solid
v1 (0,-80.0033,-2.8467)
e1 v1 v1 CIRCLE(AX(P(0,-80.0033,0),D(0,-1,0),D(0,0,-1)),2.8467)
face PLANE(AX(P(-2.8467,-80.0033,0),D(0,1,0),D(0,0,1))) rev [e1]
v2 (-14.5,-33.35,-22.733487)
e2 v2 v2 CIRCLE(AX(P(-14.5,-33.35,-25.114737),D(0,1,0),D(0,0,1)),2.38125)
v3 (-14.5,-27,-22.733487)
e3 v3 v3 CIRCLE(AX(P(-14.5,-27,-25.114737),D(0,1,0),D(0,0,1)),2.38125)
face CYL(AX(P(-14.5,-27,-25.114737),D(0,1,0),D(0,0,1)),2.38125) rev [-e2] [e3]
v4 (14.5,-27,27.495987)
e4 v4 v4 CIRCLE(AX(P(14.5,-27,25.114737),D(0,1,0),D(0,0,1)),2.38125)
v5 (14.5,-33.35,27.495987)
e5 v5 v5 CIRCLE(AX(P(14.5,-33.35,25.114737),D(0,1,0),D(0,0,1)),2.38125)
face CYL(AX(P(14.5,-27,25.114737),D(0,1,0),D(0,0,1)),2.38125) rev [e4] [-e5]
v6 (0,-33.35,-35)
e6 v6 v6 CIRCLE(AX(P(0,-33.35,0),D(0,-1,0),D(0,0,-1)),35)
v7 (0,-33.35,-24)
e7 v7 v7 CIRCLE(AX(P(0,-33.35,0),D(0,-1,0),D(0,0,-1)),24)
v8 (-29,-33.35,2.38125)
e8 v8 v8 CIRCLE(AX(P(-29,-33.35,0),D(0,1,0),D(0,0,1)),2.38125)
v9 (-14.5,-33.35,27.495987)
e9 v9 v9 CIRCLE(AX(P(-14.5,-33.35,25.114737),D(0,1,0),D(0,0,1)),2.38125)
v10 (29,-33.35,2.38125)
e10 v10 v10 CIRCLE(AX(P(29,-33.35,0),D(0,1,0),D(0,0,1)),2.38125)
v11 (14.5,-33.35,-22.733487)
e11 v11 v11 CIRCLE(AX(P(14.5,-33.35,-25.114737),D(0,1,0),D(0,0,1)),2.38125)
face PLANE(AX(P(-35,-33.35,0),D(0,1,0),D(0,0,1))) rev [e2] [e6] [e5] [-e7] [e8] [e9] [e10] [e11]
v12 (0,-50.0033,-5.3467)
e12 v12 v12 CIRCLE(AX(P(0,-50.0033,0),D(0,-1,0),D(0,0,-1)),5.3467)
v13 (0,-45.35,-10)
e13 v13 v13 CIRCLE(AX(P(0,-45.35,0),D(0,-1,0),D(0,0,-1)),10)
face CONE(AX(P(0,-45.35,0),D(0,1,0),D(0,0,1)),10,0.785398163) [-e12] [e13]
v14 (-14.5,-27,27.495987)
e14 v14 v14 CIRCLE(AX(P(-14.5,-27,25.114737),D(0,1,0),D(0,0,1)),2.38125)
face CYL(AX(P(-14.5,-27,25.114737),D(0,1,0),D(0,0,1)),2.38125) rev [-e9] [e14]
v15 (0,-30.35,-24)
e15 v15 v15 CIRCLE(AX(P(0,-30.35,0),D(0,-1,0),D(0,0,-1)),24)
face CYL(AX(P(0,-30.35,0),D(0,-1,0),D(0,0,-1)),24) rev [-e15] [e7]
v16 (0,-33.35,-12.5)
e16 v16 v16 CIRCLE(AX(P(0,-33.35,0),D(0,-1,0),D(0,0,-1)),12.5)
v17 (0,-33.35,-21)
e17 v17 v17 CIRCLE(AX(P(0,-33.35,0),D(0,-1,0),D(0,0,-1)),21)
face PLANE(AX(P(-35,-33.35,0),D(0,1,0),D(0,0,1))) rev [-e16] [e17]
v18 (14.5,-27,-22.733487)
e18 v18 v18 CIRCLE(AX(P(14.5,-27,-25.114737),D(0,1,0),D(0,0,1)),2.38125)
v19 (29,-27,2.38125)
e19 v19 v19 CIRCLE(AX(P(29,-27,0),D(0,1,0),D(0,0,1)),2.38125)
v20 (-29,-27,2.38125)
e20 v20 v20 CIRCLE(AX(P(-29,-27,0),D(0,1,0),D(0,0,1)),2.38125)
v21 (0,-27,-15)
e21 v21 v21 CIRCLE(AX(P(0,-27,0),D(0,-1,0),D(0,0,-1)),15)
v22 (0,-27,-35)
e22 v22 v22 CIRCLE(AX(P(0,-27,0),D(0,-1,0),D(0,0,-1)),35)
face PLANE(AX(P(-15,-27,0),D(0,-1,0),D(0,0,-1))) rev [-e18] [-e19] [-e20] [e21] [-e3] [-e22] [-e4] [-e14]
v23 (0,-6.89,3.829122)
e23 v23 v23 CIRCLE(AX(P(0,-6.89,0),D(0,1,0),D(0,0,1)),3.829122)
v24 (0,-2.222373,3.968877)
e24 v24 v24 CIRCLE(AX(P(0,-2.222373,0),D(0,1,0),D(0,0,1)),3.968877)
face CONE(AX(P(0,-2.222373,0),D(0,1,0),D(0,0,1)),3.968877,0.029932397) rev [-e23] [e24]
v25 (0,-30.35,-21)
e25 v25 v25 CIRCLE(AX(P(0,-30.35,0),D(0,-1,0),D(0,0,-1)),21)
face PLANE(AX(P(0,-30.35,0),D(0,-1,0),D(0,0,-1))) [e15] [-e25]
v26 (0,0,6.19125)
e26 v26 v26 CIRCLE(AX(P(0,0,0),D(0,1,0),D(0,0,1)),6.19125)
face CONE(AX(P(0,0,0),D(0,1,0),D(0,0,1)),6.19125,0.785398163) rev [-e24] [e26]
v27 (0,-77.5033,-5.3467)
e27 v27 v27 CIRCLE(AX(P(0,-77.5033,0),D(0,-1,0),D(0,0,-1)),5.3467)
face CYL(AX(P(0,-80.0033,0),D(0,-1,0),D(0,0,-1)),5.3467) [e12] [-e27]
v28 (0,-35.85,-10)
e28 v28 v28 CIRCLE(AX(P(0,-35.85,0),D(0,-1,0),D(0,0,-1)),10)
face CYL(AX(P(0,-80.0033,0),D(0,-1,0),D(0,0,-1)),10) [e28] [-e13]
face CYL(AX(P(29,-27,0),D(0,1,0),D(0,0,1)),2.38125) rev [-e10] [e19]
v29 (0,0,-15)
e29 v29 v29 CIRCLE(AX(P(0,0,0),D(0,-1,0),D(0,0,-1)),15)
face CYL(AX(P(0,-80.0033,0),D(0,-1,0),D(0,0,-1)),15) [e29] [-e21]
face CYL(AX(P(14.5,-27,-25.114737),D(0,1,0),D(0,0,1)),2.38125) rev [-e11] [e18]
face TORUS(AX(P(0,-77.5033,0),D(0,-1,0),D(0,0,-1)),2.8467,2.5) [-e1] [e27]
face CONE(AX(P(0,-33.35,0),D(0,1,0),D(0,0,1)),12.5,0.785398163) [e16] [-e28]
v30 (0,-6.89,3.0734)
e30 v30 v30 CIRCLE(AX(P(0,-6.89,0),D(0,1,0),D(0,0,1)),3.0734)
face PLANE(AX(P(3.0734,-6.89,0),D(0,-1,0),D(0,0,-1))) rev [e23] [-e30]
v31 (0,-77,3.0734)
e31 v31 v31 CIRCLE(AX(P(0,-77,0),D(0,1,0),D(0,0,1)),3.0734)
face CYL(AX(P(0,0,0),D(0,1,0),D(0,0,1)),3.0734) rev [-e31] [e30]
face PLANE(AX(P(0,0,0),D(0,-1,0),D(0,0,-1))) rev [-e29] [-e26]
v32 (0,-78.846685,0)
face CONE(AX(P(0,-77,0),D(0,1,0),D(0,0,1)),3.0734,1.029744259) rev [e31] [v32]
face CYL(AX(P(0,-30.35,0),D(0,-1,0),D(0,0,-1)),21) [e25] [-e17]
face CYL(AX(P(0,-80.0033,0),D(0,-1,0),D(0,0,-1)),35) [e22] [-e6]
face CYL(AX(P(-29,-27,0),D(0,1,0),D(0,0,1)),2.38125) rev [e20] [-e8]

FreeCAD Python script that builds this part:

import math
import FreeCAD as App
import Part
import Sketcher
from FreeCAD import Vector
Q = App.Units.Quantity


def add_polygon(sketch, points):
    """Adds a closed chain of lines whose ends are joined by coincident constraints."""
    first, n = sketch.GeometryCount, len(points)
    for a, b in zip(points, points[1:] + points[:1]):
        sketch.addGeometry(Part.LineSegment(App.Vector(*a, 0), App.Vector(*b, 0)), False)
    for i in range(n):
        sketch.addConstraint(Sketcher.Constraint("Coincident", first + i, 2, first + (i + 1) % n, 1))

doc = App.newDocument("Part")
body = doc.addObject("PartDesign::Body", "Body")

sketch1 = doc.addObject("Sketcher::SketchObject", "Sketch")
body.addObject(sketch1)
sketch1.AttachmentSupport = (doc.XY_Plane, [""])
sketch1.MapMode = "FlatFace"
sketch1.addGeometry(Part.LineSegment(Vector(0, 0, 0), Vector(-15, 0, 0)), False)
sketch1.addGeometry(Part.LineSegment(Vector(-15, 0, 0), Vector(-15, -27, 0)), False)
sketch1.addGeometry(Part.LineSegment(Vector(-15, -27, 0), Vector(-35, -27, 0)), False)
sketch1.addGeometry(Part.LineSegment(Vector(-35, -27, 0), Vector(-35, -33.4, 0)), False)
sketch1.addGeometry(Part.LineSegment(Vector(-35, -33.4, 0), Vector(-12.5, -33.4, 0)), False)
sketch1.addGeometry(Part.LineSegment(Vector(-12.5, -33.4, 0), Vector(-10, -35.9, 0)), False)
sketch1.addGeometry(Part.LineSegment(Vector(-10, -35.9, 0), Vector(-10, -45.4, 0)), False)
sketch1.addGeometry(Part.LineSegment(Vector(-10, -45.4, 0), Vector(-5.3, -50, 0)), False)
sketch1.addGeometry(Part.LineSegment(Vector(-5.3, -50, 0), Vector(-5.3, -77.5, 0)), False)
sketch1.addGeometry(Part.ArcOfCircle(Part.Circle(Vector(-2.8, -77.5, 0), Vector(0, 0, 1), 2.5), math.radians(180), math.radians(270)), False)
sketch1.addGeometry(Part.LineSegment(Vector(-2.8, -80, 0), Vector(0, -80, 0)), False)
sketch1.addGeometry(Part.LineSegment(Vector(0, -80, 0), Vector(0, 0, 0)), False)
sketch1.addConstraint(Sketcher.Constraint("Coincident", 0, 2, 1, 1))
sketch1.addConstraint(Sketcher.Constraint("Coincident", 1, 2, 2, 1))
sketch1.addConstraint(Sketcher.Constraint("Coincident", 2, 2, 3, 1))
sketch1.addConstraint(Sketcher.Constraint("Coincident", 3, 2, 4, 1))
sketch1.addConstraint(Sketcher.Constraint("Coincident", 4, 2, 5, 1))
sketch1.addConstraint(Sketcher.Constraint("Coincident", 5, 2, 6, 1))
sketch1.addConstraint(Sketcher.Constraint("Coincident", 6, 2, 7, 1))
sketch1.addConstraint(Sketcher.Constraint("Coincident", 7, 2, 8, 1))
sketch1.addConstraint(Sketcher.Constraint("Tangent", 8, 2, 9, 1))
sketch1.addConstraint(Sketcher.Constraint("Tangent", 9, 2, 10, 1))
sketch1.addConstraint(Sketcher.Constraint("Coincident", 10, 2, 11, 1))
sketch1.addConstraint(Sketcher.Constraint("Coincident", 11, 2, 0, 1))
sketch1.addConstraint(Sketcher.Constraint("Horizontal", 0))
sketch1.addConstraint(Sketcher.Constraint("Vertical", 1))
sketch1.addConstraint(Sketcher.Constraint("Horizontal", 2))
sketch1.addConstraint(Sketcher.Constraint("Vertical", 3))
sketch1.addConstraint(Sketcher.Constraint("Horizontal", 4))
sketch1.addConstraint(Sketcher.Constraint("Vertical", 6))
sketch1.addConstraint(Sketcher.Constraint("Vertical", 8))
sketch1.addConstraint(Sketcher.Constraint("Horizontal", 10))
sketch1.addConstraint(Sketcher.Constraint("Vertical", 11))
sketch1.addConstraint(Sketcher.Constraint("Coincident", 11, 2, -1, 1))
sketch1.addConstraint(Sketcher.Constraint("Parallel", 5, 7))
sketch1.addConstraint(Sketcher.Constraint("Radius", 9, Q("2.5 mm")))
sketch1.addConstraint(Sketcher.Constraint("DistanceX", 0, 2, 0, 1, Q("15 mm")))
sketch1.addConstraint(Sketcher.Constraint("DistanceX", 2, 2, 2, 1, Q("20 mm")))
sketch1.addConstraint(Sketcher.Constraint("DistanceY", 1, 2, 1, 1, Q("27 mm")))
sketch1.addConstraint(Sketcher.Constraint("Angle", 5, Q("-45 deg")))
sketch1.addConstraint(Sketcher.Constraint("DistanceX", 4, 1, 4, 2, Q("22.5 mm")))
sketch1.addConstraint(Sketcher.Constraint("DistanceY", 6, 2, 6, 1, Q("9.5 mm")))
sketch1.addConstraint(Sketcher.Constraint("DistanceY", 8, 2, 8, 1, Q("27.5 mm")))
sketch1.addConstraint(Sketcher.Constraint("DistanceX", 5, 2, -1, 1, Q("10 mm")))
sketch1.addConstraint(Sketcher.Constraint("DistanceY", 3, 2, 3, 1, Q("6.35 mm")))
sketch1.addConstraint(Sketcher.Constraint("DistanceX", 10, 1, 10, 2, Q("2.8467 mm")))
revolution = doc.addObject("PartDesign::Revolution", "Revolution")
body.addObject(revolution)
revolution.Profile = sketch1
revolution.ReferenceAxis = (sketch1, ["V_Axis"])
revolution.Angle = 360

sketch2 = doc.addObject("Sketcher::SketchObject", "Sketch001")
body.addObject(sketch2)
sketch2.AttachmentSupport = (doc.YZ_Plane, [""])
sketch2.MapMode = "FlatFace"
add_polygon(sketch2, [(-78.8, 0), (0, 0), (0, 6.2), (-2.2, 4), (-6.9, 3.8), (-6.9, 3.1), (-77, 3.1)])
sketch2.addConstraint(Sketcher.Constraint("Horizontal", 0))
sketch2.addConstraint(Sketcher.Constraint("Vertical", 1))
sketch2.addConstraint(Sketcher.Constraint("Vertical", 4))
sketch2.addConstraint(Sketcher.Constraint("Horizontal", 5))
sketch2.addConstraint(Sketcher.Constraint("Coincident", 0, 2, -1, 1))
sketch2.addConstraint(Sketcher.Constraint("Angle", 2, Q("-135 deg")))
sketch2.addConstraint(Sketcher.Constraint("Angle", 6, Q("-121 deg")))
sketch2.addConstraint(Sketcher.Constraint("DistanceX", 5, 2, -1, 1, Q("77 mm")))
sketch2.addConstraint(Sketcher.Constraint("DistanceX", 5, 2, 5, 1, Q("70.11 mm")))
sketch2.addConstraint(Sketcher.Constraint("DistanceY", 1, 1, 1, 2, Q("6.19125 mm")))
sketch2.addConstraint(Sketcher.Constraint("DistanceY", 4, 2, 4, 1, Q("0.755722 mm")))
sketch2.addConstraint(Sketcher.Constraint("DistanceY", -1, 1, 4, 2, Q("3.0734 mm")))
sketch2.addConstraint(Sketcher.Constraint("Distance", 2, Q("3.14291 mm")))
groove = doc.addObject("PartDesign::Groove", "Groove")
body.addObject(groove)
groove.Profile = sketch2
groove.ReferenceAxis = (sketch2, ["H_Axis"])
groove.Angle = 360

sketch3 = doc.addObject("Sketcher::SketchObject", "Sketch002")
body.addObject(sketch3)
sketch3.AttachmentSupport = (doc.XZ_Plane, [""])
sketch3.MapMode = "FlatFace"
sketch3.AttachmentOffset = App.Placement(Vector(0, 0, 33.35), App.Rotation())
sketch3.addGeometry(Part.Circle(Vector(0, 0, 0), Vector(0, 0, 1), 24), False)
sketch3.addGeometry(Part.Circle(Vector(0, 0, 0), Vector(0, 0, 1), 21), False)
sketch3.addConstraint(Sketcher.Constraint("Coincident", 0, 3, -1, 1))
sketch3.addConstraint(Sketcher.Constraint("Coincident", 1, 3, -1, 1))
sketch3.addConstraint(Sketcher.Constraint("Diameter", 0, Q("48 mm")))
sketch3.addConstraint(Sketcher.Constraint("Diameter", 1, Q("42 mm")))
pocket1 = doc.addObject("PartDesign::Pocket", "Pocket")
body.addObject(pocket1)
pocket1.Profile = sketch3
pocket1.Length = 3

sketch4 = doc.addObject("Sketcher::SketchObject", "Sketch003")
body.addObject(sketch4)
sketch4.AttachmentSupport = (doc.XZ_Plane, [""])
sketch4.MapMode = "FlatFace"
sketch4.AttachmentOffset = App.Placement(Vector(0, 0, 27), App.Rotation())
sketch4.addGeometry(Part.Circle(Vector(29, 0, 0), Vector(0, 0, 1), 2.4), False)
sketch4.addConstraint(Sketcher.Constraint("PointOnObject", 0, 3, -1))
sketch4.addConstraint(Sketcher.Constraint("DistanceX", -1, 1, 0, 3, Q("29 mm")))
sketch4.addConstraint(Sketcher.Constraint("Diameter", 0, Q("4.7625 mm")))
doc.recompute()
hole = doc.addObject("PartDesign::Hole", "Hole")
body.addObject(hole)
hole.Profile = sketch4
hole.ThreadType = "None"
hole.Diameter = 4.7625
hole.DepthType = "ThroughAll"
hole.Reversed = True
doc.recompute()

polarpattern = doc.addObject("PartDesign::PolarPattern", "PolarPattern")
body.addObject(polarpattern)
polarpattern.Originals = [hole]
polarpattern.Axis = (doc.Y_Axis, [""])
polarpattern.Angle = 360
polarpattern.Occurrences = 6
body.Tip = polarpattern

doc.recompute()
